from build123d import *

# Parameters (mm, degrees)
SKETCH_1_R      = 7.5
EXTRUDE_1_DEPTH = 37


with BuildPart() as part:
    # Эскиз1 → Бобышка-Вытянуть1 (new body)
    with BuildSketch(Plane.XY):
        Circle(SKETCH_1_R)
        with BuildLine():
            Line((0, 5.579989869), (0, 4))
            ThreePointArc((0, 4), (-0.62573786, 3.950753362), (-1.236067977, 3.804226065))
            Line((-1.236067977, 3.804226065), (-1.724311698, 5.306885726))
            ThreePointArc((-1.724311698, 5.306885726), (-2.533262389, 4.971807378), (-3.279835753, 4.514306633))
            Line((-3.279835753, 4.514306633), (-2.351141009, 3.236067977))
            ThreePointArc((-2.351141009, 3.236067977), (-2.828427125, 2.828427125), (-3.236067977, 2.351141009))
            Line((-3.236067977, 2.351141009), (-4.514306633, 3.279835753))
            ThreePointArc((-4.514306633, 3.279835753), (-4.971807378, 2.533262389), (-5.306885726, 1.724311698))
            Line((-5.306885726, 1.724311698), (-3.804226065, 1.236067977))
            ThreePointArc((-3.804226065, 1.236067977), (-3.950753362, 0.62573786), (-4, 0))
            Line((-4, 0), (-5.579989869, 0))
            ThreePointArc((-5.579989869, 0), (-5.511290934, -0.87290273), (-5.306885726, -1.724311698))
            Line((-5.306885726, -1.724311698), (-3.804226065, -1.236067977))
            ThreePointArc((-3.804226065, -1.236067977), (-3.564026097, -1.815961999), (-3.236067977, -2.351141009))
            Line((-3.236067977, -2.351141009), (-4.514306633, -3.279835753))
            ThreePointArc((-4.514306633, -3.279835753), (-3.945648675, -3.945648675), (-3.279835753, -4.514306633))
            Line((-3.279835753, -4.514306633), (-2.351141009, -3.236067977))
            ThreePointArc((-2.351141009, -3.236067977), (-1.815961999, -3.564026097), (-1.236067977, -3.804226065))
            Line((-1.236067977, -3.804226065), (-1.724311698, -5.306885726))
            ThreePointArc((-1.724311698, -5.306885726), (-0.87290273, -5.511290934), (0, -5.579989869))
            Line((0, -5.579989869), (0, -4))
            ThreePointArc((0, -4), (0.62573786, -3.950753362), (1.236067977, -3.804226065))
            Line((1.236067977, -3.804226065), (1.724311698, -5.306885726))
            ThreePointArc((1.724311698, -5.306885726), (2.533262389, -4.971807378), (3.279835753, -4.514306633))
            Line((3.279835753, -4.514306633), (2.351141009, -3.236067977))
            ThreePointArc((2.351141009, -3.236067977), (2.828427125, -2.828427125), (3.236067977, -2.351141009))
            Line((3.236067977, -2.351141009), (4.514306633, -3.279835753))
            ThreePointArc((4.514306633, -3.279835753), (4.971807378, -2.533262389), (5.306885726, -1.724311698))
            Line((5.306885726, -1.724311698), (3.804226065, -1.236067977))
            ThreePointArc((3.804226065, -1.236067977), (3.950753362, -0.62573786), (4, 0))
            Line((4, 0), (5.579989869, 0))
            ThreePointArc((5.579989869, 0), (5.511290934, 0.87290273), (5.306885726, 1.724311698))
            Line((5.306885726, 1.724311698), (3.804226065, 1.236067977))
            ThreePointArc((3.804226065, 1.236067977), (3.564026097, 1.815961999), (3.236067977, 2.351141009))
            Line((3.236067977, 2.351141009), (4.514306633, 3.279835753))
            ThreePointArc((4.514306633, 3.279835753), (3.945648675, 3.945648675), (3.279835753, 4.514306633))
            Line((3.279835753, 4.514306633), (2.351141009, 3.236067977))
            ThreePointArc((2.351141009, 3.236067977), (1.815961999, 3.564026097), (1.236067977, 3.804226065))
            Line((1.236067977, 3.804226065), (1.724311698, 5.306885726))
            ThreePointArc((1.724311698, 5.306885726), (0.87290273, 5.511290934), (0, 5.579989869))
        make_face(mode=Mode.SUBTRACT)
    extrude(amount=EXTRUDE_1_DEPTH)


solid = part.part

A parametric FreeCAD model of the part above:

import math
import FreeCAD as App
import Part
import Sketcher
Q = App.Units.Quantity

doc = App.newDocument("Part")
body = doc.addObject("PartDesign::Body", "Body")

# Sketch on XY plane
sketch1 = body.newObject("Sketcher::SketchObject", "Sketch")
sketch1.AttachmentSupport = (doc.getObject("XY_Plane"), [""])
sketch1.MapMode = "FlatFace"
sketch1.addGeometry(Part.Circle(App.Vector(0, 0, 0), App.Vector(0, 0, 1), 7.5), False)
sketch1.addGeometry(Part.LineSegment(App.Vector(0, 4, 0), App.Vector(0, 5.57999, 0)), False)
sketch1.addGeometry(Part.ArcOfCircle(Part.Circle(App.Vector(0, 0, 0), App.Vector(0, 0, 1), 5.57999), math.radians(72), math.radians(90)), False)
sketch1.addGeometry(Part.LineSegment(App.Vector(1.724312, 5.306886, 0), App.Vector(1.236068, 3.804226, 0)), False)
sketch1.addGeometry(Part.ArcOfCircle(Part.Circle(App.Vector(0, 0, 0), App.Vector(0, 0, 1), 4), math.radians(54), math.radians(72)), False)
sketch1.addGeometry(Part.LineSegment(App.Vector(2.351141, 3.236068, 0), App.Vector(3.279836, 4.514307, 0)), False)
sketch1.addGeometry(Part.ArcOfCircle(Part.Circle(App.Vector(0, 0, 0), App.Vector(0, 0, 1), 5.57999), math.radians(36), math.radians(54)), False)
sketch1.addGeometry(Part.LineSegment(App.Vector(4.514307, 3.279836, 0), App.Vector(3.236068, 2.351141, 0)), False)
sketch1.addGeometry(Part.ArcOfCircle(Part.Circle(App.Vector(0, 0, 0), App.Vector(0, 0, 1), 4), math.radians(18), math.radians(36)), False)
sketch1.addGeometry(Part.LineSegment(App.Vector(3.804226, 1.236068, 0), App.Vector(5.306886, 1.724312, 0)), False)
sketch1.addGeometry(Part.ArcOfCircle(Part.Circle(App.Vector(0, 0, 0), App.Vector(0, 0, 1), 5.57999), math.radians(0), math.radians(18)), False)
sketch1.addGeometry(Part.LineSegment(App.Vector(5.57999, 0, 0), App.Vector(4, 0, 0)), False)
sketch1.addGeometry(Part.ArcOfCircle(Part.Circle(App.Vector(0, 0, 0), App.Vector(0, 0, 1), 4), math.radians(-18), math.radians(0)), False)
sketch1.addGeometry(Part.LineSegment(App.Vector(3.804226, -1.236068, 0), App.Vector(5.306886, -1.724312, 0)), False)
sketch1.addGeometry(Part.ArcOfCircle(Part.Circle(App.Vector(0, 0, 0), App.Vector(0, 0, 1), 5.57999), math.radians(-36), math.radians(-18)), False)
sketch1.addGeometry(Part.LineSegment(App.Vector(4.514307, -3.279836, 0), App.Vector(3.236068, -2.351141, 0)), False)
sketch1.addGeometry(Part.ArcOfCircle(Part.Circle(App.Vector(0, 0, 0), App.Vector(0, 0, 1), 4), math.radians(-54), math.radians(-36)), False)
sketch1.addGeometry(Part.LineSegment(App.Vector(2.351141, -3.236068, 0), App.Vector(3.279836, -4.514307, 0)), False)
sketch1.addGeometry(Part.ArcOfCircle(Part.Circle(App.Vector(0, 0, 0), App.Vector(0, 0, 1), 5.57999), math.radians(-72), math.radians(-54)), False)
sketch1.addGeometry(Part.LineSegment(App.Vector(1.724312, -5.306886, 0), App.Vector(1.236068, -3.804226, 0)), False)
sketch1.addGeometry(Part.ArcOfCircle(Part.Circle(App.Vector(0, 0, 0), App.Vector(0, 0, 1), 4), math.radians(-90), math.radians(-72)), False)
sketch1.addGeometry(Part.LineSegment(App.Vector(0, -4, 0), App.Vector(0, -5.57999, 0)), False)
sketch1.addGeometry(Part.ArcOfCircle(Part.Circle(App.Vector(0, 0, 0), App.Vector(0, 0, 1), 5.57999), math.radians(-108), math.radians(-90)), False)
sketch1.addGeometry(Part.LineSegment(App.Vector(-1.724312, -5.306886, 0), App.Vector(-1.236068, -3.804226, 0)), False)
sketch1.addGeometry(Part.ArcOfCircle(Part.Circle(App.Vector(0, 0, 0), App.Vector(0, 0, 1), 4), math.radians(-126), math.radians(-108)), False)
sketch1.addGeometry(Part.LineSegment(App.Vector(-2.351141, -3.236068, 0), App.Vector(-3.279836, -4.514307, 0)), False)
sketch1.addGeometry(Part.ArcOfCircle(Part.Circle(App.Vector(0, 0, 0), App.Vector(0, 0, 1), 5.57999), math.radians(-144), math.radians(-126)), False)
sketch1.addGeometry(Part.LineSegment(App.Vector(-4.514307, -3.279836, 0), App.Vector(-3.236068, -2.351141, 0)), False)
sketch1.addGeometry(Part.ArcOfCircle(Part.Circle(App.Vector(0, 0, 0), App.Vector(0, 0, 1), 4), math.radians(-162), math.radians(-144)), False)
sketch1.addGeometry(Part.LineSegment(App.Vector(-3.804226, -1.236068, 0), App.Vector(-5.306886, -1.724312, 0)), False)
sketch1.addGeometry(Part.ArcOfCircle(Part.Circle(App.Vector(0, 0, 0), App.Vector(0, 0, 1), 5.57999), math.radians(-180), math.radians(-162)), False)
sketch1.addGeometry(Part.LineSegment(App.Vector(-5.57999, 0, 0), App.Vector(-4, 0, 0)), False)
sketch1.addGeometry(Part.ArcOfCircle(Part.Circle(App.Vector(0, 0, 0), App.Vector(0, 0, 1), 4), math.radians(162), math.radians(180)), False)
sketch1.addGeometry(Part.LineSegment(App.Vector(-3.804226, 1.236068, 0), App.Vector(-5.306886, 1.724312, 0)), False)
sketch1.addGeometry(Part.ArcOfCircle(Part.Circle(App.Vector(0, 0, 0), App.Vector(0, 0, 1), 5.57999), math.radians(144), math.radians(162)), False)
sketch1.addGeometry(Part.LineSegment(App.Vector(-4.514307, 3.279836, 0), App.Vector(-3.236068, 2.351141, 0)), False)
sketch1.addGeometry(Part.ArcOfCircle(Part.Circle(App.Vector(0, 0, 0), App.Vector(0, 0, 1), 4), math.radians(126), math.radians(144)), False)
sketch1.addGeometry(Part.LineSegment(App.Vector(-2.351141, 3.236068, 0), App.Vector(-3.279836, 4.514307, 0)), False)
sketch1.addGeometry(Part.ArcOfCircle(Part.Circle(App.Vector(0, 0, 0), App.Vector(0, 0, 1), 5.57999), math.radians(108), math.radians(126)), False)
sketch1.addGeometry(Part.LineSegment(App.Vector(-1.724312, 5.306886, 0), App.Vector(-1.236068, 3.804226, 0)), False)
sketch1.addGeometry(Part.ArcOfCircle(Part.Circle(App.Vector(0, 0, 0), App.Vector(0, 0, 1), 4), math.radians(90), math.radians(108)), False)
sketch1.addConstraint(Sketcher.Constraint("Coincident", 1, 2, 2, 2))
sketch1.addConstraint(Sketcher.Constraint("Coincident", 2, 1, 3, 1))
sketch1.addConstraint(Sketcher.Constraint("Coincident", 3, 2, 4, 2))
sketch1.addConstraint(Sketcher.Constraint("Coincident", 4, 1, 5, 1))
sketch1.addConstraint(Sketcher.Constraint("Coincident", 5, 2, 6, 2))
sketch1.addConstraint(Sketcher.Constraint("Coincident", 6, 1, 7, 1))
sketch1.addConstraint(Sketcher.Constraint("Coincident", 7, 2, 8, 2))
sketch1.addConstraint(Sketcher.Constraint("Coincident", 8, 1, 9, 1))
sketch1.addConstraint(Sketcher.Constraint("Coincident", 9, 2, 10, 2))
sketch1.addConstraint(Sketcher.Constraint("Coincident", 10, 1, 11, 1))
sketch1.addConstraint(Sketcher.Constraint("Coincident", 11, 2, 12, 2))
sketch1.addConstraint(Sketcher.Constraint("Coincident", 12, 1, 13, 1))
sketch1.addConstraint(Sketcher.Constraint("Coincident", 13, 2, 14, 2))
sketch1.addConstraint(Sketcher.Constraint("Coincident", 14, 1, 15, 1))
sketch1.addConstraint(Sketcher.Constraint("Coincident", 15, 2, 16, 2))
sketch1.addConstraint(Sketcher.Constraint("Coincident", 16, 1, 17, 1))
sketch1.addConstraint(Sketcher.Constraint("Coincident", 17, 2, 18, 2))
sketch1.addConstraint(Sketcher.Constraint("Coincident", 18, 1, 19, 1))
sketch1.addConstraint(Sketcher.Constraint("Coincident", 19, 2, 20, 2))
sketch1.addConstraint(Sketcher.Constraint("Coincident", 20, 1, 21, 1))
sketch1.addConstraint(Sketcher.Constraint("Coincident", 21, 2, 22, 2))
sketch1.addConstraint(Sketcher.Constraint("Coincident", 22, 1, 23, 1))
sketch1.addConstraint(Sketcher.Constraint("Coincident", 23, 2, 24, 2))
sketch1.addConstraint(Sketcher.Constraint("Coincident", 24, 1, 25, 1))
sketch1.addConstraint(Sketcher.Constraint("Coincident", 25, 2, 26, 2))
sketch1.addConstraint(Sketcher.Constraint("Coincident", 26, 1, 27, 1))
sketch1.addConstraint(Sketcher.Constraint("Coincident", 27, 2, 28, 2))
sketch1.addConstraint(Sketcher.Constraint("Coincident", 28, 1, 29, 1))
sketch1.addConstraint(Sketcher.Constraint("Coincident", 29, 2, 30, 2))
sketch1.addConstraint(Sketcher.Constraint("Coincident", 30, 1, 31, 1))
sketch1.addConstraint(Sketcher.Constraint("Coincident", 31, 2, 32, 2))
sketch1.addConstraint(Sketcher.Constraint("Coincident", 32, 1, 33, 1))
sketch1.addConstraint(Sketcher.Constraint("Coincident", 33, 2, 34, 2))
sketch1.addConstraint(Sketcher.Constraint("Coincident", 34, 1, 35, 1))
sketch1.addConstraint(Sketcher.Constraint("Coincident", 35, 2, 36, 2))
sketch1.addConstraint(Sketcher.Constraint("Coincident", 36, 1, 37, 1))
sketch1.addConstraint(Sketcher.Constraint("Coincident", 37, 2, 38, 2))
sketch1.addConstraint(Sketcher.Constraint("Coincident", 38, 1, 39, 1))
sketch1.addConstraint(Sketcher.Constraint("Coincident", 39, 2, 40, 2))
sketch1.addConstraint(Sketcher.Constraint("Coincident", 40, 1, 1, 1))
sketch1.addConstraint(Sketcher.Constraint("Vertical", 1))
sketch1.addConstraint(Sketcher.Constraint("Horizontal", 11))
sketch1.addConstraint(Sketcher.Constraint("Vertical", 21))
sketch1.addConstraint(Sketcher.Constraint("Horizontal", 31))
sketch1.addConstraint(Sketcher.Constraint("Coincident", 0, 3, -1, 1))
sketch1.addConstraint(Sketcher.Constraint("Coincident", 2, 3, -1, 1))
sketch1.addConstraint(Sketcher.Constraint("Coincident", 4, 3, -1, 1))
sketch1.addConstraint(Sketcher.Constraint("Coincident", 6, 3, -1, 1))
sketch1.addConstraint(Sketcher.Constraint("Coincident", 8, 3, -1, 1))
sketch1.addConstraint(Sketcher.Constraint("Coincident", 10, 3, -1, 1))
sketch1.addConstraint(Sketcher.Constraint("Coincident", 12, 3, -1, 1))
sketch1.addConstraint(Sketcher.Constraint("Coincident", 14, 3, -1, 1))
sketch1.addConstraint(Sketcher.Constraint("Coincident", 16, 3, -1, 1))
sketch1.addConstraint(Sketcher.Constraint("Coincident", 18, 3, -1, 1))
sketch1.addConstraint(Sketcher.Constraint("Coincident", 20, 3, -1, 1))
sketch1.addConstraint(Sketcher.Constraint("Coincident", 22, 3, -1, 1))
sketch1.addConstraint(Sketcher.Constraint("Coincident", 24, 3, -1, 1))
sketch1.addConstraint(Sketcher.Constraint("Coincident", 26, 3, -1, 1))
sketch1.addConstraint(Sketcher.Constraint("Coincident", 28, 3, -1, 1))
sketch1.addConstraint(Sketcher.Constraint("Coincident", 30, 3, -1, 1))
sketch1.addConstraint(Sketcher.Constraint("Coincident", 32, 3, -1, 1))
sketch1.addConstraint(Sketcher.Constraint("Coincident", 34, 3, -1, 1))
sketch1.addConstraint(Sketcher.Constraint("Coincident", 36, 3, -1, 1))
sketch1.addConstraint(Sketcher.Constraint("Coincident", 38, 3, -1, 1))
sketch1.addConstraint(Sketcher.Constraint("Coincident", 40, 3, -1, 1))
sketch1.addConstraint(Sketcher.Constraint("Equal", 2, 6))
sketch1.addConstraint(Sketcher.Constraint("Equal", 4, 8))
sketch1.addConstraint(Sketcher.Constraint("Equal", 6, 10))
sketch1.addConstraint(Sketcher.Constraint("Equal", 8, 12))
sketch1.addConstraint(Sketcher.Constraint("Equal", 10, 14))
sketch1.addConstraint(Sketcher.Constraint("Equal", 12, 16))
sketch1.addConstraint(Sketcher.Constraint("Equal", 14, 18))
sketch1.addConstraint(Sketcher.Constraint("Equal", 16, 20))
sketch1.addConstraint(Sketcher.Constraint("Equal", 18, 22))
sketch1.addConstraint(Sketcher.Constraint("Equal", 20, 24))
sketch1.addConstraint(Sketcher.Constraint("Equal", 22, 26))
sketch1.addConstraint(Sketcher.Constraint("Equal", 24, 28))
sketch1.addConstraint(Sketcher.Constraint("Equal", 26, 30))
sketch1.addConstraint(Sketcher.Constraint("Equal", 28, 32))
sketch1.addConstraint(Sketcher.Constraint("Equal", 30, 34))
sketch1.addConstraint(Sketcher.Constraint("Equal", 32, 36))
sketch1.addConstraint(Sketcher.Constraint("Equal", 34, 38))
sketch1.addConstraint(Sketcher.Constraint("Equal", 36, 40))
sketch1.addConstraint(Sketcher.Constraint("PointOnObject", 1, 2, -2))
sketch1.addConstraint(Sketcher.Constraint("PointOnObject", 10, 1, -1))
sketch1.addConstraint(Sketcher.Constraint("PointOnObject", 20, 1, -2))
sketch1.addConstraint(Sketcher.Constraint("PointOnObject", 30, 1, -1))
sketch1.addConstraint(Sketcher.Constraint("Perpendicular", 3, 13))
sketch1.addConstraint(Sketcher.Constraint("Perpendicular", 5, 15))
sketch1.addConstraint(Sketcher.Constraint("Perpendicular", 7, 17))
sketch1.addConstraint(Sketcher.Constraint("Perpendicular", 9, 19))
sketch1.addConstraint(Sketcher.Constraint("Perpendicular", 13, 23))
sketch1.addConstraint(Sketcher.Constraint("Perpendicular", 15, 25))
sketch1.addConstraint(Sketcher.Constraint("Perpendicular", 17, 27))
sketch1.addConstraint(Sketcher.Constraint("Perpendicular", 19, 29))
sketch1.addConstraint(Sketcher.Constraint("Perpendicular", 23, 33))
sketch1.addConstraint(Sketcher.Constraint("Perpendicular", 25, 35))
sketch1.addConstraint(Sketcher.Constraint("Perpendicular", 27, 37))
sketch1.addConstraint(Sketcher.Constraint("Perpendicular", 29, 39))
sketch1.addConstraint(Sketcher.Constraint("Horizontal", 18, 1, 22, 1))
sketch1.addConstraint(Sketcher.Constraint("Horizontal", 19, 2, 23, 2))
sketch1.addConstraint(Sketcher.Constraint("Horizontal", 16, 1, 24, 1))
sketch1.addConstraint(Sketcher.Constraint("Horizontal", 17, 2, 25, 2))
sketch1.addConstraint(Sketcher.Constraint("Horizontal", 14, 1, 26, 1))
sketch1.addConstraint(Sketcher.Constraint("Horizontal", 12, 1, 28, 1))
sketch1.addConstraint(Sketcher.Constraint("Horizontal", 8, 1, 32, 1))
sketch1.addConstraint(Sketcher.Constraint("Horizontal", 6, 1, 34, 1))
sketch1.addConstraint(Sketcher.Constraint("Horizontal", 4, 1, 36, 1))
sketch1.addConstraint(Sketcher.Constraint("Horizontal", 2, 1, 38, 1))
sketch1.addConstraint(Sketcher.Constraint("Vertical", 8, 1, 12, 1))
sketch1.addConstraint(Sketcher.Constraint("Vertical", 6, 1, 14, 1))
sketch1.addConstraint(Sketcher.Constraint("Vertical", 4, 1, 16, 1))
sketch1.addConstraint(Sketcher.Constraint("Vertical", 2, 1, 18, 1))
sketch1.addConstraint(Sketcher.Constraint("Diameter", 0, Q("15 mm")))
sketch1.addConstraint(Sketcher.Constraint("Radius", 4, Q("4 mm")))
sketch1.addConstraint(Sketcher.Constraint("Angle", 3, Q("-108 deg")))
sketch1.addConstraint(Sketcher.Constraint("Angle", 5, Q("54 deg")))
sketch1.addConstraint(Sketcher.Constraint("Radius", 2, Q("5.57999 mm")))
sketch1.addConstraint(Sketcher.Constraint("DistanceX", -1, 1, 2, 1, Q("1.724312 mm")))
sketch1.addConstraint(Sketcher.Constraint("DistanceX", -1, 1, 4, 1, Q("2.351141 mm")))
sketch1.addConstraint(Sketcher.Constraint("DistanceY", -1, 1, 7, 2, Q("2.351141 mm")))
sketch1.addConstraint(Sketcher.Constraint("DistanceY", -1, 1, 9, 2, Q("1.724312 mm")))
pad1 = body.newObject("PartDesign::Pad", "Pad")
pad1.Profile = sketch1
pad1.Length = 37

doc.recompute()
